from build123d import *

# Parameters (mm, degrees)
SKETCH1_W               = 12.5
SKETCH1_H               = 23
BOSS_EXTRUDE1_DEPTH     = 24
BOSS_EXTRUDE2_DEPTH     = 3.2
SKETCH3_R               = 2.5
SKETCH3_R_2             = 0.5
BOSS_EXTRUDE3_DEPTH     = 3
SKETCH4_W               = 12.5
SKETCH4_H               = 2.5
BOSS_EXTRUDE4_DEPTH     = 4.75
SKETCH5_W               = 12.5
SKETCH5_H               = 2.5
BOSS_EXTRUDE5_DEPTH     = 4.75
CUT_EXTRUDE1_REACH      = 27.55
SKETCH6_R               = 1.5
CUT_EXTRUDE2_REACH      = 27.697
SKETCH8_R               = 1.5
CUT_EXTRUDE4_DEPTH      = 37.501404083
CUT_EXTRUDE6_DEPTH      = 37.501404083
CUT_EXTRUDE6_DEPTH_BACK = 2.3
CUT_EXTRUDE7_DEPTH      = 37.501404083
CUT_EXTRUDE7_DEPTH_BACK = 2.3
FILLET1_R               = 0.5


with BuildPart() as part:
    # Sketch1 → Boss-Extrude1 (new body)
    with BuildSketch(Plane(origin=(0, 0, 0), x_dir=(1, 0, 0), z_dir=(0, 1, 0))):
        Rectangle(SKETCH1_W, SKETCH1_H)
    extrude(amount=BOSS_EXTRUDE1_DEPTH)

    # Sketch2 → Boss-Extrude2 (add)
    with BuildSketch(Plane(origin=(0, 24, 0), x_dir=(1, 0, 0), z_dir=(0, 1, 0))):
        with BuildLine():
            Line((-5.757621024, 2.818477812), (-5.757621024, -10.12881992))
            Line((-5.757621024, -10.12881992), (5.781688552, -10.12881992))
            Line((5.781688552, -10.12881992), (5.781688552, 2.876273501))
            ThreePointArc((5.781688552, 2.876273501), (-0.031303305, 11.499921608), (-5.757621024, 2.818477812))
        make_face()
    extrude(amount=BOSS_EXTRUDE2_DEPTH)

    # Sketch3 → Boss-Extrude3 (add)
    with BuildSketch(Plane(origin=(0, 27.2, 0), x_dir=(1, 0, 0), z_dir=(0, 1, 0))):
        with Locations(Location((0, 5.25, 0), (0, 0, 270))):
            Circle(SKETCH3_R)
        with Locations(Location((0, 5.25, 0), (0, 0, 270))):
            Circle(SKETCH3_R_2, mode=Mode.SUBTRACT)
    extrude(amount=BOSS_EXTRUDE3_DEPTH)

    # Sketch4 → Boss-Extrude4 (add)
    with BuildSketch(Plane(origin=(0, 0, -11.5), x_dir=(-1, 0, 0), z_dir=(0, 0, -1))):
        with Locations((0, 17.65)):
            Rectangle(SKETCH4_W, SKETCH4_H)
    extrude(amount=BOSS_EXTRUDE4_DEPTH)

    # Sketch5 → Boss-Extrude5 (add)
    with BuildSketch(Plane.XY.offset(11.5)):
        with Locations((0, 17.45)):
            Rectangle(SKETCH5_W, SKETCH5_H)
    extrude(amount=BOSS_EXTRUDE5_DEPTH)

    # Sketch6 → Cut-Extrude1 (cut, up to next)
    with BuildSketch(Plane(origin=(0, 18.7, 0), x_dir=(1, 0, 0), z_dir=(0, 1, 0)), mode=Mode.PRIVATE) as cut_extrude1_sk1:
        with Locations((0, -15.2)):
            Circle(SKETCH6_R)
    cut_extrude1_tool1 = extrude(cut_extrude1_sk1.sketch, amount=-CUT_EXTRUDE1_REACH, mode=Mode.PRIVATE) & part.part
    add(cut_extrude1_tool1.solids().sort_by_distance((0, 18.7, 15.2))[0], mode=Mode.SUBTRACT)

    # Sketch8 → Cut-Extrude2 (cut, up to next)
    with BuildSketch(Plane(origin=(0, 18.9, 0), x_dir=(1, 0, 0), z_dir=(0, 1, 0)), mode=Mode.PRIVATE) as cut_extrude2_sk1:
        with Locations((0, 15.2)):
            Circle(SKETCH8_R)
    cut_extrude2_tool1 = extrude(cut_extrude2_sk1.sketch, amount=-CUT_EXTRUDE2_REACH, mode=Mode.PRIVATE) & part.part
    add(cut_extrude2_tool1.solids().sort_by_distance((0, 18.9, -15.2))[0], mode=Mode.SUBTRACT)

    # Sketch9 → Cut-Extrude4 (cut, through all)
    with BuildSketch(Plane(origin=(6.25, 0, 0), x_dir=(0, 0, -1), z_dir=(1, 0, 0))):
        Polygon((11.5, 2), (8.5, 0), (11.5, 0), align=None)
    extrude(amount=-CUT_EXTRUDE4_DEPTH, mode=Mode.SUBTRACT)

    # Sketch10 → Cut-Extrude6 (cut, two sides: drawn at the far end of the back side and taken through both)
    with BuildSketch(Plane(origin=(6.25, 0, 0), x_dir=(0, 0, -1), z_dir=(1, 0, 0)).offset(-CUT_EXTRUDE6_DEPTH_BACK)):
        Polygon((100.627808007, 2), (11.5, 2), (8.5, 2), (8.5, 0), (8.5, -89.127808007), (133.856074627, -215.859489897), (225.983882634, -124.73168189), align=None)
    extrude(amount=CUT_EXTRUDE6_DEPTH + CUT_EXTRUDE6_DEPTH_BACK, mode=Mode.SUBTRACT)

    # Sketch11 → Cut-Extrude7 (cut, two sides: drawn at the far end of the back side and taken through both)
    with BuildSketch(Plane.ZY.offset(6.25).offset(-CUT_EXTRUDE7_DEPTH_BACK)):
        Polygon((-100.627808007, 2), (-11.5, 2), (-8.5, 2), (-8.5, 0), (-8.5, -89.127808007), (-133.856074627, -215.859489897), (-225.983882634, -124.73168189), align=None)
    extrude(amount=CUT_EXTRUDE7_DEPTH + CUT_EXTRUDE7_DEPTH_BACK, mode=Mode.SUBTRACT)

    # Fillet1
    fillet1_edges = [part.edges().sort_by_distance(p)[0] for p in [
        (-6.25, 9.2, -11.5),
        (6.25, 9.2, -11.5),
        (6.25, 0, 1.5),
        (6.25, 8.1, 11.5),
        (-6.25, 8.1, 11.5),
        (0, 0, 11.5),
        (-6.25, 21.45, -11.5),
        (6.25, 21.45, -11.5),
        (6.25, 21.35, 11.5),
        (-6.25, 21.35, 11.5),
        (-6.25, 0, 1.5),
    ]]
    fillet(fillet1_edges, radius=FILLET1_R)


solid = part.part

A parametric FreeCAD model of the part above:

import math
import FreeCAD as App
import Part
import Sketcher


def edges_at(feature, points):
    """Names of the edges that pass closest to the given points."""
    edges = feature.Shape.Edges
    near = lambda p: min(range(len(edges)), key=lambda i: edges[i].distToShape(Part.Vertex(*p))[0])
    return sorted({f"Edge{near(p) + 1}" for p in points})

doc = App.newDocument("Part")
body = doc.addObject("PartDesign::Body", "Body")

# Sketch on XZ plane
sketch1 = body.newObject("Sketcher::SketchObject", "Sketch")
sketch1.AttachmentSupport = (doc.getObject("XZ_Plane"), [""])
sketch1.MapMode = "FlatFace"
sketch1.addGeometry(Part.LineSegment(App.Vector(-6, -12, 0), App.Vector(-6, 12, 0)), False)
sketch1.addGeometry(Part.LineSegment(App.Vector(-6, 12, 0), App.Vector(6, 12, 0)), False)
sketch1.addGeometry(Part.LineSegment(App.Vector(6, 12, 0), App.Vector(6, -12, 0)), False)
sketch1.addGeometry(Part.LineSegment(App.Vector(6, -12, 0), App.Vector(-6, -12, 0)), False)
sketch1.addConstraint(Sketcher.Constraint("Coincident", 0, 2, 1, 1))
sketch1.addConstraint(Sketcher.Constraint("Coincident", 1, 2, 2, 1))
sketch1.addConstraint(Sketcher.Constraint("Coincident", 2, 2, 3, 1))
sketch1.addConstraint(Sketcher.Constraint("Coincident", 3, 2, 0, 1))
sketch1.addConstraint(Sketcher.Constraint("Vertical", 0))
sketch1.addConstraint(Sketcher.Constraint("Horizontal", 1))
sketch1.addConstraint(Sketcher.Constraint("Vertical", 2))
sketch1.addConstraint(Sketcher.Constraint("Horizontal", 3))
sketch1.addConstraint(Sketcher.Constraint("Symmetric", 0, 2, 2, 2, -1, 1))
sketch1.addConstraint(Sketcher.Constraint("DistanceY", 0, 1, 0, 2, 23.0))
sketch1.addConstraint(Sketcher.Constraint("DistanceX", 1, 1, 1, 2, 12.5))
pad1 = body.newObject("PartDesign::Pad", "Pad")
pad1.Profile = sketch1
pad1.Length = 24
pad1.Reversed = True

# Sketch on XZ plane
sketch2 = body.newObject("Sketcher::SketchObject", "Sketch001")
sketch2.AttachmentSupport = (doc.getObject("XZ_Plane"), [""])
sketch2.MapMode = "FlatFace"
sketch2.AttachmentOffset = App.Placement(App.Vector(0, 0, -24), App.Rotation())
sketch2.addGeometry(Part.LineSegment(App.Vector(-6, -3, 0), App.Vector(-6, 10, 0)), False)
sketch2.addGeometry(Part.LineSegment(App.Vector(-6, 10, 0), App.Vector(6, 10, 0)), False)
sketch2.addGeometry(Part.LineSegment(App.Vector(6, 10, 0), App.Vector(6, -3, 0)), False)
sketch2.addGeometry(Part.ArcOfCircle(Part.Circle(App.Vector(0, -5, 0), App.Vector(0, 0, 1), 6), math.radians(157), math.radians(382)), False)
sketch2.addConstraint(Sketcher.Constraint("Coincident", 0, 2, 1, 1))
sketch2.addConstraint(Sketcher.Constraint("Coincident", 1, 2, 2, 1))
sketch2.addConstraint(Sketcher.Constraint("Coincident", 2, 2, 3, 2))
sketch2.addConstraint(Sketcher.Constraint("Coincident", 3, 1, 0, 1))
sketch2.addConstraint(Sketcher.Constraint("Vertical", 0))
sketch2.addConstraint(Sketcher.Constraint("Horizontal", 1))
sketch2.addConstraint(Sketcher.Constraint("Vertical", 2))
sketch2.addConstraint(Sketcher.Constraint("PointOnObject", 3, 3, -2))
sketch2.addConstraint(Sketcher.Constraint("Radius", 3, 6.25))
sketch2.addConstraint(Sketcher.Constraint("DistanceY", 3, 3, -1, 1, 5.25))
sketch2.addConstraint(Sketcher.Constraint("DistanceX", 1, 1, 1, 2, 11.53931))
sketch2.addConstraint(Sketcher.Constraint("DistanceY", 0, 1, 0, 2, 12.947298))
sketch2.addConstraint(Sketcher.Constraint("DistanceY", 2, 2, 2, 1, 13.005093))
pad2 = body.newObject("PartDesign::Pad", "Pad001")
pad2.Profile = sketch2
pad2.Length = 3.2
pad2.Reversed = True

# Sketch on XZ plane
sketch3 = body.newObject("Sketcher::SketchObject", "Sketch002")
sketch3.AttachmentSupport = (doc.getObject("XZ_Plane"), [""])
sketch3.MapMode = "FlatFace"
sketch3.AttachmentOffset = App.Placement(App.Vector(0, 0, -27.2), App.Rotation())
sketch3.addGeometry(Part.Circle(App.Vector(0, -5.2, 0), App.Vector(0, 0, 1), 2.5), False)
sketch3.addGeometry(Part.Circle(App.Vector(0, -5.2, 0), App.Vector(0, 0, 1), 0.5), False)
sketch3.addConstraint(Sketcher.Constraint("Coincident", 1, 3, 0, 3))
sketch3.addConstraint(Sketcher.Constraint("PointOnObject", 0, 3, -2))
sketch3.addConstraint(Sketcher.Constraint("Diameter", 0, 5.0))
sketch3.addConstraint(Sketcher.Constraint("Diameter", 1, 1.0))
sketch3.addConstraint(Sketcher.Constraint("DistanceY", 0, 3, -1, 1, 5.25))
pad3 = body.newObject("PartDesign::Pad", "Pad002")
pad3.Profile = sketch3
pad3.Length = 3
pad3.Reversed = True

# Sketch on XY plane
sketch4 = body.newObject("Sketcher::SketchObject", "Sketch003")
sketch4.AttachmentSupport = (doc.getObject("XY_Plane"), [""])
sketch4.MapMode = "FlatFace"
sketch4.AttachmentOffset = App.Placement(App.Vector(0, 0, -11.5), App.Rotation())
sketch4.addGeometry(Part.LineSegment(App.Vector(6.2, 18.9, 0), App.Vector(6.2, 16.4, 0)), False)
sketch4.addGeometry(Part.LineSegment(App.Vector(6.2, 16.4, 0), App.Vector(-6.2, 16.4, 0)), False)
sketch4.addGeometry(Part.LineSegment(App.Vector(-6.2, 16.4, 0), App.Vector(-6.2, 18.9, 0)), False)
sketch4.addGeometry(Part.LineSegment(App.Vector(-6.2, 18.9, 0), App.Vector(6.2, 18.9, 0)), False)
sketch4.addConstraint(Sketcher.Constraint("Coincident", 0, 2, 1, 1))
sketch4.addConstraint(Sketcher.Constraint("Coincident", 1, 2, 2, 1))
sketch4.addConstraint(Sketcher.Constraint("Coincident", 2, 2, 3, 1))
sketch4.addConstraint(Sketcher.Constraint("Coincident", 3, 2, 0, 1))
sketch4.addConstraint(Sketcher.Constraint("Vertical", 0))
sketch4.addConstraint(Sketcher.Constraint("Horizontal", 1))
sketch4.addConstraint(Sketcher.Constraint("Vertical", 2))
sketch4.addConstraint(Sketcher.Constraint("Horizontal", 3))
sketch4.addConstraint(Sketcher.Constraint("DistanceX", 1, 2, 1, 1, 12.5))
sketch4.addConstraint(Sketcher.Constraint("DistanceY", 0, 2, 0, 1, 2.5))
sketch4.addConstraint(Sketcher.Constraint("DistanceY", -1, 1, 0, 2, 16.4))
sketch4.addConstraint(Sketcher.Constraint("DistanceX", -1, 1, 0, 2, 6.25))
pad4 = body.newObject("PartDesign::Pad", "Pad003")
pad4.Profile = sketch4
pad4.Length = 4.75
pad4.Reversed = True

# Sketch on XY plane
sketch5 = body.newObject("Sketcher::SketchObject", "Sketch004")
sketch5.AttachmentSupport = (doc.getObject("XY_Plane"), [""])
sketch5.MapMode = "FlatFace"
sketch5.AttachmentOffset = App.Placement(App.Vector(0, 0, 11.5), App.Rotation())
sketch5.addGeometry(Part.LineSegment(App.Vector(-6.2, 18.7, 0), App.Vector(-6.2, 16.2, 0)), False)
sketch5.addGeometry(Part.LineSegment(App.Vector(-6.2, 16.2, 0), App.Vector(6.2, 16.2, 0)), False)
sketch5.addGeometry(Part.LineSegment(App.Vector(6.2, 16.2, 0), App.Vector(6.2, 18.7, 0)), False)
sketch5.addGeometry(Part.LineSegment(App.Vector(6.2, 18.7, 0), App.Vector(-6.2, 18.7, 0)), False)
sketch5.addConstraint(Sketcher.Constraint("Coincident", 0, 2, 1, 1))
sketch5.addConstraint(Sketcher.Constraint("Coincident", 1, 2, 2, 1))
sketch5.addConstraint(Sketcher.Constraint("Coincident", 2, 2, 3, 1))
sketch5.addConstraint(Sketcher.Constraint("Coincident", 3, 2, 0, 1))
sketch5.addConstraint(Sketcher.Constraint("Vertical", 0))
sketch5.addConstraint(Sketcher.Constraint("Horizontal", 1))
sketch5.addConstraint(Sketcher.Constraint("Vertical", 2))
sketch5.addConstraint(Sketcher.Constraint("Horizontal", 3))
sketch5.addConstraint(Sketcher.Constraint("DistanceX", 1, 1, 1, 2, 12.5))
sketch5.addConstraint(Sketcher.Constraint("DistanceY", 0, 2, 0, 1, 2.5))
sketch5.addConstraint(Sketcher.Constraint("DistanceY", -1, 1, 0, 2, 16.2))
sketch5.addConstraint(Sketcher.Constraint("DistanceX", 0, 2, -1, 1, 6.25))
pad5 = body.newObject("PartDesign::Pad", "Pad004")
pad5.Profile = sketch5
pad5.Length = 4.75

# Sketch on XZ plane
sketch6 = body.newObject("Sketcher::SketchObject", "Sketch005")
sketch6.AttachmentSupport = (doc.getObject("XZ_Plane"), [""])
sketch6.MapMode = "FlatFace"
sketch6.AttachmentOffset = App.Placement(App.Vector(0, 0, -18.7), App.Rotation())
sketch6.addGeometry(Part.Circle(App.Vector(0, 15.2, 0), App.Vector(0, 0, 1), 1.5), False)
sketch6.addConstraint(Sketcher.Constraint("PointOnObject", 0, 3, -2))
sketch6.addConstraint(Sketcher.Constraint("Diameter", 0, 3.0))
sketch6.addConstraint(Sketcher.Constraint("DistanceY", -1, 1, 0, 3, 15.2))
pocket1 = body.newObject("PartDesign::Pocket", "Pocket")
pocket1.Profile = sketch6
pocket1.Type = "UpToFirst"
pocket1.Reversed = True

# Sketch on XZ plane
sketch7 = body.newObject("Sketcher::SketchObject", "Sketch006")
sketch7.AttachmentSupport = (doc.getObject("XZ_Plane"), [""])
sketch7.MapMode = "FlatFace"
sketch7.AttachmentOffset = App.Placement(App.Vector(0, 0, -18.9), App.Rotation())
sketch7.addGeometry(Part.Circle(App.Vector(0, -15.2, 0), App.Vector(0, 0, 1), 1.5), False)
sketch7.addConstraint(Sketcher.Constraint("PointOnObject", 0, 3, -2))
sketch7.addConstraint(Sketcher.Constraint("Diameter", 0, 3.0))
sketch7.addConstraint(Sketcher.Constraint("DistanceY", 0, 3, -1, 1, 15.2))
pocket2 = body.newObject("PartDesign::Pocket", "Pocket001")
pocket2.Profile = sketch7
pocket2.Type = "UpToFirst"
pocket2.Reversed = True

# Sketch on YZ plane
sketch8 = body.newObject("Sketcher::SketchObject", "Sketch007")
sketch8.AttachmentSupport = (doc.getObject("YZ_Plane"), [""])
sketch8.MapMode = "FlatFace"
sketch8.AttachmentOffset = App.Placement(App.Vector(0, 0, 6.25), App.Rotation())
sketch8.addGeometry(Part.LineSegment(App.Vector(2, -11.5, 0), App.Vector(0, -8.5, 0)), False)
sketch8.addGeometry(Part.LineSegment(App.Vector(0, -8.5, 0), App.Vector(0, -11.5, 0)), False)
sketch8.addGeometry(Part.LineSegment(App.Vector(0, -11.5, 0), App.Vector(2, -11.5, 0)), False)
sketch8.addConstraint(Sketcher.Constraint("Coincident", 0, 2, 1, 1))
sketch8.addConstraint(Sketcher.Constraint("Coincident", 1, 2, 2, 1))
sketch8.addConstraint(Sketcher.Constraint("Coincident", 2, 2, 0, 1))
sketch8.addConstraint(Sketcher.Constraint("Vertical", 1))
sketch8.addConstraint(Sketcher.Constraint("Horizontal", 2))
sketch8.addConstraint(Sketcher.Constraint("PointOnObject", 0, 2, -2))
sketch8.addConstraint(Sketcher.Constraint("DistanceX", 2, 1, 2, 2, 2.0))
sketch8.addConstraint(Sketcher.Constraint("DistanceY", 1, 2, 1, 1, 3.0))
sketch8.addConstraint(Sketcher.Constraint("DistanceY", 0, 2, -1, 1, 8.5))
pocket3 = body.newObject("PartDesign::Pocket", "Pocket002")
pocket3.Profile = sketch8
pocket3.Type = "ThroughAll"

# Sketch on YZ plane
sketch9 = body.newObject("Sketcher::SketchObject", "Sketch008")
sketch9.AttachmentSupport = (doc.getObject("YZ_Plane"), [""])
sketch9.MapMode = "FlatFace"
sketch9.AttachmentOffset = App.Placement(App.Vector(0, 0, 6.25), App.Rotation())
sketch9.addGeometry(Part.LineSegment(App.Vector(2, -101, 0), App.Vector(2, -8, 0)), False)
sketch9.addGeometry(Part.LineSegment(App.Vector(2, -8, 0), App.Vector(-89, -8, 0)), False)
sketch9.addGeometry(Part.LineSegment(App.Vector(-89, -8, 0), App.Vector(-216, -134, 0)), False)
sketch9.addGeometry(Part.LineSegment(App.Vector(-216, -134, 0), App.Vector(-125, -226, 0)), False)
sketch9.addGeometry(Part.LineSegment(App.Vector(-125, -226, 0), App.Vector(2, -101, 0)), False)
sketch9.addConstraint(Sketcher.Constraint("Coincident", 0, 2, 1, 1))
sketch9.addConstraint(Sketcher.Constraint("Coincident", 1, 2, 2, 1))
sketch9.addConstraint(Sketcher.Constraint("Coincident", 2, 2, 3, 1))
sketch9.addConstraint(Sketcher.Constraint("Coincident", 3, 2, 4, 1))
sketch9.addConstraint(Sketcher.Constraint("Coincident", 4, 2, 0, 1))
sketch9.addConstraint(Sketcher.Constraint("Vertical", 0))
sketch9.addConstraint(Sketcher.Constraint("Horizontal", 1))
sketch9.addConstraint(Sketcher.Constraint("Perpendicular", 2, 3))
sketch9.addConstraint(Sketcher.Constraint("Perpendicular", 3, 4))
sketch9.addConstraint(Sketcher.Constraint("Equal", 2, 4))
sketch9.addConstraint(Sketcher.Constraint("DistanceX", -1, 1, 0, 2, 2.0))
sketch9.addConstraint(Sketcher.Constraint("DistanceY", 0, 2, -1, 1, 8.5))
sketch9.addConstraint(Sketcher.Constraint("DistanceX", 1, 2, 1, 1, 91.127808))
sketch9.addConstraint(Sketcher.Constraint("DistanceY", 0, 1, 0, 2, 92.127808))
sketch9.addConstraint(Sketcher.Constraint("DistanceX", 2, 2, -1, 1, 215.85949))
pocket4 = body.newObject("PartDesign::Pocket", "Pocket003")
pocket4.Profile = sketch9
pocket4.Type = "TwoLengths"
pocket4.Length = 37.501404
pocket4.Length2 = 2.3
pocket4.Reversed = True

# Sketch on YZ plane
sketch10 = body.newObject("Sketcher::SketchObject", "Sketch009")
sketch10.AttachmentSupport = (doc.getObject("YZ_Plane"), [""])
sketch10.MapMode = "FlatFace"
sketch10.AttachmentOffset = App.Placement(App.Vector(0, 0, -6.25), App.Rotation())
sketch10.addGeometry(Part.LineSegment(App.Vector(2, -8, 0), App.Vector(2, -101, 0)), False)
sketch10.addGeometry(Part.LineSegment(App.Vector(2, -101, 0), App.Vector(-125, -226, 0)), False)
sketch10.addGeometry(Part.LineSegment(App.Vector(-125, -226, 0), App.Vector(-216, -134, 0)), False)
sketch10.addGeometry(Part.LineSegment(App.Vector(-216, -134, 0), App.Vector(-89, -8, 0)), False)
sketch10.addGeometry(Part.LineSegment(App.Vector(-89, -8, 0), App.Vector(2, -8, 0)), False)
sketch10.addConstraint(Sketcher.Constraint("Coincident", 0, 2, 1, 1))
sketch10.addConstraint(Sketcher.Constraint("Coincident", 1, 2, 2, 1))
sketch10.addConstraint(Sketcher.Constraint("Coincident", 2, 2, 3, 1))
sketch10.addConstraint(Sketcher.Constraint("Coincident", 3, 2, 4, 1))
sketch10.addConstraint(Sketcher.Constraint("Coincident", 4, 2, 0, 1))
sketch10.addConstraint(Sketcher.Constraint("Vertical", 0))
sketch10.addConstraint(Sketcher.Constraint("Horizontal", 4))
sketch10.addConstraint(Sketcher.Constraint("Perpendicular", 1, 2))
sketch10.addConstraint(Sketcher.Constraint("Perpendicular", 2, 3))
sketch10.addConstraint(Sketcher.Constraint("Equal", 1, 3))
sketch10.addConstraint(Sketcher.Constraint("DistanceX", -1, 1, 0, 2, 2.0))
sketch10.addConstraint(Sketcher.Constraint("DistanceY", 3, 2, -1, 1, 8.5))
sketch10.addConstraint(Sketcher.Constraint("DistanceX", 4, 1, 4, 2, 91.127808))
sketch10.addConstraint(Sketcher.Constraint("DistanceY", 0, 2, 0, 1, 92.127808))
sketch10.addConstraint(Sketcher.Constraint("DistanceX", 1, 2, -1, 1, 124.731682))
pocket5 = body.newObject("PartDesign::Pocket", "Pocket004")
pocket5.Profile = sketch10
pocket5.Type = "TwoLengths"
pocket5.Length = 37.501404
pocket5.Length2 = 2.3
doc.recompute()

fillet = body.newObject("PartDesign::Fillet", "Fillet")
fillet.Base = (pocket5, edges_at(pocket5, [
    (-6.25, 9.2, -11.5),
    (6.25, 9.2, -11.5),
    (6.25, 0, 1.5),
    (6.25, 8.1, 11.5),
    (-6.25, 8.1, 11.5),
    (0, 0, 11.5),
    (-6.25, 21.45, -11.5),
    (6.25, 21.45, -11.5),
    (6.25, 21.35, 11.5),
    (-6.25, 21.35, 11.5),
    (-6.25, 0, 1.5),
]))
fillet.Radius = 0.5

doc.recompute()
